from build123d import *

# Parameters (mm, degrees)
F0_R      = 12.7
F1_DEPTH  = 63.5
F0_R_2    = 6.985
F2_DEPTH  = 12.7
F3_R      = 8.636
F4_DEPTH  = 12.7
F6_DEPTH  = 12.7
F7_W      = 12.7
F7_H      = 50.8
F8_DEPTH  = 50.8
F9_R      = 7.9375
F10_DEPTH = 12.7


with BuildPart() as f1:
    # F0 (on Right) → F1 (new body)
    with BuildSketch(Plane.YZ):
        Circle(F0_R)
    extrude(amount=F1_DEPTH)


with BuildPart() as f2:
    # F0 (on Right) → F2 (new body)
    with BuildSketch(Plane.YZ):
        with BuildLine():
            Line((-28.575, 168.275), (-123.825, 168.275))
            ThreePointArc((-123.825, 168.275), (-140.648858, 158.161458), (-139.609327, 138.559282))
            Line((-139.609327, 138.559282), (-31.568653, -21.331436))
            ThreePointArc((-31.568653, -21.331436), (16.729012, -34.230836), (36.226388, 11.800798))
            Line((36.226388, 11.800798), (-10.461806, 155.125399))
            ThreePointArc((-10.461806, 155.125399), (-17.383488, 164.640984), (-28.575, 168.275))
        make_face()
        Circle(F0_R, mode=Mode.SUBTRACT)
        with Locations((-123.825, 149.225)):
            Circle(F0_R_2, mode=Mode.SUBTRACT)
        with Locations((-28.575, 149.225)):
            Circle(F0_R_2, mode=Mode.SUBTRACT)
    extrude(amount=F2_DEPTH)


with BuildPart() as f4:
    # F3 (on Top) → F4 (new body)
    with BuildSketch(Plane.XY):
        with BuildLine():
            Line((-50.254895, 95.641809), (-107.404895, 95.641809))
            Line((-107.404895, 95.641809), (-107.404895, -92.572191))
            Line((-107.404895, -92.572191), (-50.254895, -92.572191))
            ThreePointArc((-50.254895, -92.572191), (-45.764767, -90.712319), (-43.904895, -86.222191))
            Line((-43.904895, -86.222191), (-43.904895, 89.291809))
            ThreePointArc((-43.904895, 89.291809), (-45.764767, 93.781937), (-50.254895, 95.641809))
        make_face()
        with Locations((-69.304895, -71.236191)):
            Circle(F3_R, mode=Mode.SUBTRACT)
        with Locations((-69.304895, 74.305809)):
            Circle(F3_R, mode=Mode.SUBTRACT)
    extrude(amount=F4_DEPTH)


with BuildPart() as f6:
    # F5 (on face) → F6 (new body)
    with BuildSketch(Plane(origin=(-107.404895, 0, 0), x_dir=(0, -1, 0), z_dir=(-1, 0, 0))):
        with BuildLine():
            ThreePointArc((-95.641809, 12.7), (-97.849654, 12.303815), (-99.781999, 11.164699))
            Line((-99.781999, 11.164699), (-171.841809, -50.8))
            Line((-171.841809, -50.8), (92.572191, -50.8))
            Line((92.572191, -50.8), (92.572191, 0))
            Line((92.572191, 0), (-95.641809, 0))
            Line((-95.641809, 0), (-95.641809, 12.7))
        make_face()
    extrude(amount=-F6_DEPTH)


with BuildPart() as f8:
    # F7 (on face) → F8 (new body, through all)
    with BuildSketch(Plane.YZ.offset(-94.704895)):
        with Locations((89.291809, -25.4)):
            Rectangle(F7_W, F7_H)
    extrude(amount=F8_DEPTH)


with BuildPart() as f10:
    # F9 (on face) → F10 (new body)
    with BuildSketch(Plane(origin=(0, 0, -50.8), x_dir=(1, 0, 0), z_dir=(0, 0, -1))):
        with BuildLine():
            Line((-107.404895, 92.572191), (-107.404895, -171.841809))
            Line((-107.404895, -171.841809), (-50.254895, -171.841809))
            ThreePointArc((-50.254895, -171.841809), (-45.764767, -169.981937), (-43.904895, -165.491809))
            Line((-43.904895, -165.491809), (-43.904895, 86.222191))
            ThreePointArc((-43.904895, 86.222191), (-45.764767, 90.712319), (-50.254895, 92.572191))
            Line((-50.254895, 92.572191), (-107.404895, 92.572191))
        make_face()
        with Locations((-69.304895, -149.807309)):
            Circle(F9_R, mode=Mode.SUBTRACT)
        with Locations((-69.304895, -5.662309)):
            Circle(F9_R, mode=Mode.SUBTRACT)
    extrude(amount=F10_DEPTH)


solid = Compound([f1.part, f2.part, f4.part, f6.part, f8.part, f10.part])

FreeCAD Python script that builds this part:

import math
import FreeCAD as App
import Part
import Sketcher
from FreeCAD import Vector
Q = App.Units.Quantity


def add_polygon(sketch, points):
    """Adds a closed chain of lines whose ends are joined by coincident constraints."""
    first, n = sketch.GeometryCount, len(points)
    for a, b in zip(points, points[1:] + points[:1]):
        sketch.addGeometry(Part.LineSegment(App.Vector(*a, 0), App.Vector(*b, 0)), False)
    for i in range(n):
        sketch.addConstraint(Sketcher.Constraint("Coincident", first + i, 2, first + (i + 1) % n, 1))

doc = App.newDocument("Part")
body = doc.addObject("PartDesign::Body", "Body")

sketch1 = body.newObject("Sketcher::SketchObject", "Sketch")
sketch1.AttachmentSupport = (doc.getObject("YZ_Plane"), [""])
sketch1.MapMode = "FlatFace"
sketch1.addGeometry(Part.Circle(Vector(0, 0, 0), Vector(0, 0, 1), 13), False)
sketch1.addConstraint(Sketcher.Constraint("Coincident", 0, 3, -1, 1))
sketch1.addConstraint(Sketcher.Constraint("Diameter", 0, Q("1 in")))
pad1 = body.newObject("PartDesign::Pad", "Pad")
pad1.Profile = sketch1
pad1.Length = Q("2.5 in")
body2 = doc.addObject("PartDesign::Body", "Body001")

sketch2 = body2.newObject("Sketcher::SketchObject", "Sketch001")
sketch2.AttachmentSupport = (doc.getObject("YZ_Plane001"), [""])
sketch2.MapMode = "FlatFace"
sketch2.addGeometry(Part.LineSegment(Vector(-29, 168, 0), Vector(-124, 168, 0)), False)
sketch2.addGeometry(Part.ArcOfCircle(Part.Circle(Vector(-124, 149, 0), Vector(0, 0, 1), 19), math.radians(90), math.radians(214)), False)
sketch2.addGeometry(Part.LineSegment(Vector(-140, 139, 0), Vector(-32, -21, 0)), False)
sketch2.addGeometry(Part.ArcOfCircle(Part.Circle(Vector(0, 0, 0), Vector(0, 0, 1), 38), math.radians(-146), math.radians(18)), False)
sketch2.addGeometry(Part.LineSegment(Vector(36, 12, 0), Vector(-10, 155, 0)), False)
sketch2.addGeometry(Part.ArcOfCircle(Part.Circle(Vector(-29, 149, 0), Vector(0, 0, 1), 19), math.radians(18), math.radians(90)), False)
sketch2.addGeometry(Part.Circle(Vector(0, 0, 0), Vector(0, 0, 1), 13), False)
sketch2.addGeometry(Part.Circle(Vector(-124, 149, 0), Vector(0, 0, 1), 7), False)
sketch2.addGeometry(Part.Circle(Vector(-29, 149, 0), Vector(0, 0, 1), 7), False)
sketch2.addConstraint(Sketcher.Constraint("Tangent", 0, 2, 1, 1))
sketch2.addConstraint(Sketcher.Constraint("Tangent", 1, 2, 2, 1))
sketch2.addConstraint(Sketcher.Constraint("Tangent", 2, 2, 3, 1))
sketch2.addConstraint(Sketcher.Constraint("Tangent", 3, 2, 4, 1))
sketch2.addConstraint(Sketcher.Constraint("Tangent", 4, 2, 5, 1))
sketch2.addConstraint(Sketcher.Constraint("Tangent", 5, 2, 0, 1))
sketch2.addConstraint(Sketcher.Constraint("Horizontal", 0))
sketch2.addConstraint(Sketcher.Constraint("Coincident", 3, 3, -1, 1))
sketch2.addConstraint(Sketcher.Constraint("Coincident", 6, 3, -1, 1))
sketch2.addConstraint(Sketcher.Constraint("Coincident", 7, 3, 1, 3))
sketch2.addConstraint(Sketcher.Constraint("Coincident", 8, 3, 5, 3))
sketch2.addConstraint(Sketcher.Constraint("Equal", 1, 5))
sketch2.addConstraint(Sketcher.Constraint("Equal", 7, 8))
sketch2.addConstraint(Sketcher.Constraint("Diameter", 6, Q("1 in")))
sketch2.addConstraint(Sketcher.Constraint("Radius", 3, Q("1.5 in")))
sketch2.addConstraint(Sketcher.Constraint("Diameter", 7, Q("0.55 in")))
sketch2.addConstraint(Sketcher.Constraint("Radius", 1, Q("0.75 in")))
sketch2.addConstraint(Sketcher.Constraint("DistanceX", 0, 2, 0, 1, Q("3.75 in")))
sketch2.addConstraint(Sketcher.Constraint("DistanceX", 1, 3, -1, 1, Q("4.875 in")))
sketch2.addConstraint(Sketcher.Constraint("DistanceY", -1, 1, 1, 3, Q("5.875 in")))
pad2 = body2.newObject("PartDesign::Pad", "Pad001")
pad2.Profile = sketch2
pad2.Length = Q("0.5 in")
body3 = doc.addObject("PartDesign::Body", "Body002")

sketch3 = body3.newObject("Sketcher::SketchObject", "Sketch002")
sketch3.AttachmentSupport = (doc.getObject("XY_Plane002"), [""])
sketch3.MapMode = "FlatFace"
sketch3.addGeometry(Part.LineSegment(Vector(-50, 96, 0), Vector(-107, 96, 0)), False)
sketch3.addGeometry(Part.LineSegment(Vector(-107, 96, 0), Vector(-107, -93, 0)), False)
sketch3.addGeometry(Part.LineSegment(Vector(-107, -93, 0), Vector(-50, -93, 0)), False)
sketch3.addGeometry(Part.ArcOfCircle(Part.Circle(Vector(-50, -86, 0), Vector(0, 0, 1), 6), math.radians(-90), math.radians(0)), False)
sketch3.addGeometry(Part.LineSegment(Vector(-44, -86, 0), Vector(-44, 89, 0)), False)
sketch3.addGeometry(Part.ArcOfCircle(Part.Circle(Vector(-50, 89, 0), Vector(0, 0, 1), 6), math.radians(0), math.radians(90)), False)
sketch3.addGeometry(Part.Circle(Vector(-69, -71, 0), Vector(0, 0, 1), 9), False)
sketch3.addGeometry(Part.Circle(Vector(-69, 74, 0), Vector(0, 0, 1), 9), False)
sketch3.addConstraint(Sketcher.Constraint("Coincident", 0, 2, 1, 1))
sketch3.addConstraint(Sketcher.Constraint("Coincident", 1, 2, 2, 1))
sketch3.addConstraint(Sketcher.Constraint("Tangent", 2, 2, 3, 1))
sketch3.addConstraint(Sketcher.Constraint("Tangent", 3, 2, 4, 1))
sketch3.addConstraint(Sketcher.Constraint("Tangent", 4, 2, 5, 1))
sketch3.addConstraint(Sketcher.Constraint("Tangent", 5, 2, 0, 1))
sketch3.addConstraint(Sketcher.Constraint("Horizontal", 0))
sketch3.addConstraint(Sketcher.Constraint("Vertical", 1))
sketch3.addConstraint(Sketcher.Constraint("Horizontal", 2))
sketch3.addConstraint(Sketcher.Constraint("Vertical", 4))
sketch3.addConstraint(Sketcher.Constraint("Equal", 3, 5))
sketch3.addConstraint(Sketcher.Constraint("Equal", 6, 7))
sketch3.addConstraint(Sketcher.Constraint("Vertical", 6, 3, 7, 3))
sketch3.addConstraint(Sketcher.Constraint("Diameter", 6, Q("0.68 in")))
sketch3.addConstraint(Sketcher.Constraint("Radius", 3, Q("0.25 in")))
sketch3.addConstraint(Sketcher.Constraint("DistanceX", 6, 3, 3, 2, Q("1 in")))
sketch3.addConstraint(Sketcher.Constraint("DistanceX", 0, 2, 0, 1, Q("2.25 in")))
sketch3.addConstraint(Sketcher.Constraint("DistanceY", 1, 2, 1, 1, Q("7.41 in")))
sketch3.addConstraint(Sketcher.Constraint("DistanceY", 3, 3, 6, 3, Q("0.59 in")))
sketch3.addConstraint(Sketcher.Constraint("DistanceY", 7, 3, 5, 3, Q("0.59 in")))
sketch3.addConstraint(Sketcher.Constraint("DistanceY", 3, 3, -1, 1, Q("86.222191 mm")))
sketch3.addConstraint(Sketcher.Constraint("DistanceX", 3, 3, -1, 1, Q("50.254895 mm")))
pad3 = body3.newObject("PartDesign::Pad", "Pad002")
pad3.Profile = sketch3
pad3.Length = Q("0.5 in")
body4 = doc.addObject("PartDesign::Body", "Body003")

sketch4 = body4.newObject("Sketcher::SketchObject", "Sketch003")
sketch4.AttachmentSupport = (doc.getObject("YZ_Plane003"), [""])
sketch4.MapMode = "FlatFace"
sketch4.AttachmentOffset = App.Placement(Vector(0, 0, -107.404895), App.Rotation())
sketch4.addGeometry(Part.ArcOfCircle(Part.Circle(Vector(95.6, 6.3, 0), Vector(0, 0, 1), 6.4), math.radians(49), math.radians(90)), False)
sketch4.addGeometry(Part.LineSegment(Vector(99.8, 11.2, 0), Vector(171.8, -50.8, 0)), False)
sketch4.addGeometry(Part.LineSegment(Vector(171.8, -50.8, 0), Vector(-92.6, -50.8, 0)), False)
sketch4.addGeometry(Part.LineSegment(Vector(-92.6, -50.8, 0), Vector(-92.6, 0, 0)), False)
sketch4.addGeometry(Part.LineSegment(Vector(-92.6, 0, 0), Vector(95.6, 0, 0)), False)
sketch4.addGeometry(Part.LineSegment(Vector(95.6, 0, 0), Vector(95.6, 12.7, 0)), False)
sketch4.addConstraint(Sketcher.Constraint("Tangent", 0, 1, 1, 1))
sketch4.addConstraint(Sketcher.Constraint("Coincident", 1, 2, 2, 1))
sketch4.addConstraint(Sketcher.Constraint("Coincident", 2, 2, 3, 1))
sketch4.addConstraint(Sketcher.Constraint("Coincident", 3, 2, 4, 1))
sketch4.addConstraint(Sketcher.Constraint("Coincident", 4, 2, 5, 1))
sketch4.addConstraint(Sketcher.Constraint("Coincident", 5, 2, 0, 2))
sketch4.addConstraint(Sketcher.Constraint("Horizontal", 2))
sketch4.addConstraint(Sketcher.Constraint("Vertical", 3))
sketch4.addConstraint(Sketcher.Constraint("Horizontal", 4))
sketch4.addConstraint(Sketcher.Constraint("Vertical", 5))
sketch4.addConstraint(Sketcher.Constraint("PointOnObject", 3, 2, -1))
sketch4.addConstraint(Sketcher.Constraint("DistanceY", 3, 1, 3, 2, Q("2 in")))
sketch4.addConstraint(Sketcher.Constraint("DistanceY", 5, 1, 5, 2, Q("0.5 in")))
sketch4.addConstraint(Sketcher.Constraint("DistanceX", 0, 3, 1, 2, Q("3.0000001 in")))
sketch4.addConstraint(Sketcher.Constraint("DistanceX", 4, 2, 1, 2, Q("3 in")))
sketch4.addConstraint(Sketcher.Constraint("DistanceX", 2, 2, 2, 1, Q("10.41 in")))
sketch4.addConstraint(Sketcher.Constraint("Radius", 0, Q("6.350009 mm")))
sketch4.addConstraint(Sketcher.Constraint("DistanceX", -1, 1, 0, 1, Q("99.781999 mm")))
pad4 = body4.newObject("PartDesign::Pad", "Pad003")
pad4.Profile = sketch4
pad4.Length = Q("0.5 in")
body5 = doc.addObject("PartDesign::Body", "Body004")

sketch5 = body5.newObject("Sketcher::SketchObject", "Sketch004")
sketch5.AttachmentSupport = (doc.getObject("YZ_Plane004"), [""])
sketch5.MapMode = "FlatFace"
sketch5.AttachmentOffset = App.Placement(Vector(0, 0, -94.704895), App.Rotation())
add_polygon(sketch5, [(83, 0), (83, -51), (96, -51), (96, 0)])
sketch5.addConstraint(Sketcher.Constraint("Vertical", 0))
sketch5.addConstraint(Sketcher.Constraint("Horizontal", 1))
sketch5.addConstraint(Sketcher.Constraint("Vertical", 2))
sketch5.addConstraint(Sketcher.Constraint("Horizontal", 3))
sketch5.addConstraint(Sketcher.Constraint("PointOnObject", 2, 2, -1))
sketch5.addConstraint(Sketcher.Constraint("DistanceY", 0, 2, 0, 1, Q("2 in")))
sketch5.addConstraint(Sketcher.Constraint("DistanceX", 1, 1, 1, 2, Q("0.5 in")))
sketch5.addConstraint(Sketcher.Constraint("DistanceX", -1, 1, 0, 2, Q("82.941809 mm")))
pad5 = body5.newObject("PartDesign::Pad", "Pad004")
pad5.Profile = sketch5
pad5.Length = Q("2 in")
body6 = doc.addObject("PartDesign::Body", "Body005")

sketch6 = body6.newObject("Sketcher::SketchObject", "Sketch005")
sketch6.AttachmentSupport = (doc.getObject("XY_Plane005"), [""])
sketch6.MapMode = "FlatFace"
sketch6.AttachmentOffset = App.Placement(Vector(0, 0, -2 * 25.4), App.Rotation())
sketch6.addGeometry(Part.LineSegment(Vector(-107, -93, 0), Vector(-107, 172, 0)), False)
sketch6.addGeometry(Part.LineSegment(Vector(-107, 172, 0), Vector(-50, 172, 0)), False)
sketch6.addGeometry(Part.ArcOfCircle(Part.Circle(Vector(-50, 165, 0), Vector(0, 0, 1), 6), math.radians(0), math.radians(90)), False)
sketch6.addGeometry(Part.LineSegment(Vector(-44, 165, 0), Vector(-44, -86, 0)), False)
sketch6.addGeometry(Part.ArcOfCircle(Part.Circle(Vector(-50, -86, 0), Vector(0, 0, 1), 6), math.radians(-90), math.radians(0)), False)
sketch6.addGeometry(Part.LineSegment(Vector(-50, -93, 0), Vector(-107, -93, 0)), False)
sketch6.addGeometry(Part.Circle(Vector(-69, 150, 0), Vector(0, 0, 1), 8), False)
sketch6.addGeometry(Part.Circle(Vector(-69, 6, 0), Vector(0, 0, 1), 8), False)
sketch6.addConstraint(Sketcher.Constraint("Coincident", 0, 2, 1, 1))
sketch6.addConstraint(Sketcher.Constraint("Tangent", 1, 2, 2, 2))
sketch6.addConstraint(Sketcher.Constraint("Tangent", 2, 1, 3, 1))
sketch6.addConstraint(Sketcher.Constraint("Tangent", 3, 2, 4, 2))
sketch6.addConstraint(Sketcher.Constraint("Tangent", 4, 1, 5, 1))
sketch6.addConstraint(Sketcher.Constraint("Coincident", 5, 2, 0, 1))
sketch6.addConstraint(Sketcher.Constraint("Vertical", 0))
sketch6.addConstraint(Sketcher.Constraint("Horizontal", 1))
sketch6.addConstraint(Sketcher.Constraint("Vertical", 3))
sketch6.addConstraint(Sketcher.Constraint("Horizontal", 5))
sketch6.addConstraint(Sketcher.Constraint("Equal", 2, 4))
sketch6.addConstraint(Sketcher.Constraint("Equal", 6, 7))
sketch6.addConstraint(Sketcher.Constraint("Vertical", 6, 3, 7, 3))
sketch6.addConstraint(Sketcher.Constraint("Radius", 2, Q("0.25 in")))
sketch6.addConstraint(Sketcher.Constraint("Diameter", 6, Q("0.625 in")))
sketch6.addConstraint(Sketcher.Constraint("DistanceX", 6, 3, 2, 1, Q("1 in")))
sketch6.addConstraint(Sketcher.Constraint("DistanceX", 1, 1, 1, 2, Q("2.25 in")))
sketch6.addConstraint(Sketcher.Constraint("DistanceY", 0, 1, 0, 2, Q("10.41 in")))
sketch6.addConstraint(Sketcher.Constraint("DistanceY", 7, 3, 6, 3, Q("5.675 in")))
sketch6.addConstraint(Sketcher.Constraint("DistanceY", 6, 3, 2, 3, Q("0.6175 in")))
sketch6.addConstraint(Sketcher.Constraint("DistanceY", -1, 1, 2, 3, Q("165.491809 mm")))
sketch6.addConstraint(Sketcher.Constraint("DistanceX", 2, 3, -1, 1, Q("50.254895 mm")))
pad6 = body6.newObject("PartDesign::Pad", "Pad005")
pad6.Profile = sketch6
pad6.Length = Q("0.5 in")
pad6.Reversed = True

doc.recompute()
